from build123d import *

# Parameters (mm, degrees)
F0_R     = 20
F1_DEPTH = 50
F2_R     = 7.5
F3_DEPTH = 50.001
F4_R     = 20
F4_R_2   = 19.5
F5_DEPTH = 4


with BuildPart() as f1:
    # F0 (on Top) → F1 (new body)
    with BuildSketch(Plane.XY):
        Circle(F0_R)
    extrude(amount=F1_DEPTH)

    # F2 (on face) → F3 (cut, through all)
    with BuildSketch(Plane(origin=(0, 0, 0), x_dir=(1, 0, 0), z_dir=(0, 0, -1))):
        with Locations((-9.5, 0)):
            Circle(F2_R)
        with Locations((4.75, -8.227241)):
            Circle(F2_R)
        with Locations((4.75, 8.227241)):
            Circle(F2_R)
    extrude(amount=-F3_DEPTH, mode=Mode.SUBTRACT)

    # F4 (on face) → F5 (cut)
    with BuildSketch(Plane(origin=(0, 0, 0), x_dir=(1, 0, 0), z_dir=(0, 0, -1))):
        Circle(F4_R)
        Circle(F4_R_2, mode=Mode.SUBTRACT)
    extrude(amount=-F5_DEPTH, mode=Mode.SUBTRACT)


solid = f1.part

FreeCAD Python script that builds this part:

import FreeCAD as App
import Part
import Sketcher

doc = App.newDocument("Part")
body = doc.addObject("PartDesign::Body", "Body")

sketch1 = body.newObject("Sketcher::SketchObject", "Sketch")
sketch1.AttachmentSupport = (doc.getObject("XY_Plane"), [""])
sketch1.MapMode = "FlatFace"
sketch1.addGeometry(Part.Circle(App.Vector(0, 0, 0), App.Vector(0, 0, 1), 20), False)
sketch1.addConstraint([
    Sketcher.Constraint("Coincident", 0, 3, -1, 1),
    Sketcher.Constraint("Diameter", 0, 40.0),
])
pad1 = body.newObject("PartDesign::Pad", "Pad")
pad1.Profile = sketch1
pad1.Length = 50

sketch2 = body.newObject("Sketcher::SketchObject", "Sketch001")
sketch2.AttachmentSupport = (doc.getObject("XY_Plane"), [""])
sketch2.MapMode = "FlatFace"
sketch2.addGeometry([
    Part.Circle(App.Vector(-9.5, 0, 0), App.Vector(0, 0, 1), 7.5),
    Part.Circle(App.Vector(4.75, 8.227241, 0), App.Vector(0, 0, 1), 7.5),
    Part.Circle(App.Vector(4.75, -8.227241, 0), App.Vector(0, 0, 1), 7.5),
], False)
sketch2.addConstraint([
    Sketcher.Constraint("Equal", 0, 1),
    Sketcher.Constraint("Equal", 1, 2),
    Sketcher.Constraint("Symmetric", 1, 3, 2, 3, -1),
    Sketcher.Constraint("PointOnObject", 0, 3, -1),
    Sketcher.Constraint("Diameter", 0, 15.0),
    Sketcher.Constraint("DistanceX", 0, 3, -1, 1, 9.5),
    Sketcher.Constraint("DistanceX", -1, 1, 1, 3, 4.75),
    Sketcher.Constraint("DistanceY", -1, 1, 1, 3, 8.227241),
])
pocket1 = body.newObject("PartDesign::Pocket", "Pocket")
pocket1.Profile = sketch2
pocket1.Type = "ThroughAll"
pocket1.Reversed = True

sketch3 = body.newObject("Sketcher::SketchObject", "Sketch002")
sketch3.AttachmentSupport = (doc.getObject("XY_Plane"), [""])
sketch3.MapMode = "FlatFace"
sketch3.addGeometry([
    Part.Circle(App.Vector(0, 0, 0), App.Vector(0, 0, 1), 20),
    Part.Circle(App.Vector(0, 0, 0), App.Vector(0, 0, 1), 19.5),
], False)
sketch3.addConstraint([
    Sketcher.Constraint("Coincident", 0, 3, -1, 1),
    Sketcher.Constraint("Coincident", 1, 3, -1, 1),
    Sketcher.Constraint("Diameter", 0, 40.0),
    Sketcher.Constraint("Diameter", 1, 39.0),
])
pocket2 = body.newObject("PartDesign::Pocket", "Pocket001")
pocket2.Profile = sketch3
pocket2.Length = 4
pocket2.Reversed = True

doc.recompute()
